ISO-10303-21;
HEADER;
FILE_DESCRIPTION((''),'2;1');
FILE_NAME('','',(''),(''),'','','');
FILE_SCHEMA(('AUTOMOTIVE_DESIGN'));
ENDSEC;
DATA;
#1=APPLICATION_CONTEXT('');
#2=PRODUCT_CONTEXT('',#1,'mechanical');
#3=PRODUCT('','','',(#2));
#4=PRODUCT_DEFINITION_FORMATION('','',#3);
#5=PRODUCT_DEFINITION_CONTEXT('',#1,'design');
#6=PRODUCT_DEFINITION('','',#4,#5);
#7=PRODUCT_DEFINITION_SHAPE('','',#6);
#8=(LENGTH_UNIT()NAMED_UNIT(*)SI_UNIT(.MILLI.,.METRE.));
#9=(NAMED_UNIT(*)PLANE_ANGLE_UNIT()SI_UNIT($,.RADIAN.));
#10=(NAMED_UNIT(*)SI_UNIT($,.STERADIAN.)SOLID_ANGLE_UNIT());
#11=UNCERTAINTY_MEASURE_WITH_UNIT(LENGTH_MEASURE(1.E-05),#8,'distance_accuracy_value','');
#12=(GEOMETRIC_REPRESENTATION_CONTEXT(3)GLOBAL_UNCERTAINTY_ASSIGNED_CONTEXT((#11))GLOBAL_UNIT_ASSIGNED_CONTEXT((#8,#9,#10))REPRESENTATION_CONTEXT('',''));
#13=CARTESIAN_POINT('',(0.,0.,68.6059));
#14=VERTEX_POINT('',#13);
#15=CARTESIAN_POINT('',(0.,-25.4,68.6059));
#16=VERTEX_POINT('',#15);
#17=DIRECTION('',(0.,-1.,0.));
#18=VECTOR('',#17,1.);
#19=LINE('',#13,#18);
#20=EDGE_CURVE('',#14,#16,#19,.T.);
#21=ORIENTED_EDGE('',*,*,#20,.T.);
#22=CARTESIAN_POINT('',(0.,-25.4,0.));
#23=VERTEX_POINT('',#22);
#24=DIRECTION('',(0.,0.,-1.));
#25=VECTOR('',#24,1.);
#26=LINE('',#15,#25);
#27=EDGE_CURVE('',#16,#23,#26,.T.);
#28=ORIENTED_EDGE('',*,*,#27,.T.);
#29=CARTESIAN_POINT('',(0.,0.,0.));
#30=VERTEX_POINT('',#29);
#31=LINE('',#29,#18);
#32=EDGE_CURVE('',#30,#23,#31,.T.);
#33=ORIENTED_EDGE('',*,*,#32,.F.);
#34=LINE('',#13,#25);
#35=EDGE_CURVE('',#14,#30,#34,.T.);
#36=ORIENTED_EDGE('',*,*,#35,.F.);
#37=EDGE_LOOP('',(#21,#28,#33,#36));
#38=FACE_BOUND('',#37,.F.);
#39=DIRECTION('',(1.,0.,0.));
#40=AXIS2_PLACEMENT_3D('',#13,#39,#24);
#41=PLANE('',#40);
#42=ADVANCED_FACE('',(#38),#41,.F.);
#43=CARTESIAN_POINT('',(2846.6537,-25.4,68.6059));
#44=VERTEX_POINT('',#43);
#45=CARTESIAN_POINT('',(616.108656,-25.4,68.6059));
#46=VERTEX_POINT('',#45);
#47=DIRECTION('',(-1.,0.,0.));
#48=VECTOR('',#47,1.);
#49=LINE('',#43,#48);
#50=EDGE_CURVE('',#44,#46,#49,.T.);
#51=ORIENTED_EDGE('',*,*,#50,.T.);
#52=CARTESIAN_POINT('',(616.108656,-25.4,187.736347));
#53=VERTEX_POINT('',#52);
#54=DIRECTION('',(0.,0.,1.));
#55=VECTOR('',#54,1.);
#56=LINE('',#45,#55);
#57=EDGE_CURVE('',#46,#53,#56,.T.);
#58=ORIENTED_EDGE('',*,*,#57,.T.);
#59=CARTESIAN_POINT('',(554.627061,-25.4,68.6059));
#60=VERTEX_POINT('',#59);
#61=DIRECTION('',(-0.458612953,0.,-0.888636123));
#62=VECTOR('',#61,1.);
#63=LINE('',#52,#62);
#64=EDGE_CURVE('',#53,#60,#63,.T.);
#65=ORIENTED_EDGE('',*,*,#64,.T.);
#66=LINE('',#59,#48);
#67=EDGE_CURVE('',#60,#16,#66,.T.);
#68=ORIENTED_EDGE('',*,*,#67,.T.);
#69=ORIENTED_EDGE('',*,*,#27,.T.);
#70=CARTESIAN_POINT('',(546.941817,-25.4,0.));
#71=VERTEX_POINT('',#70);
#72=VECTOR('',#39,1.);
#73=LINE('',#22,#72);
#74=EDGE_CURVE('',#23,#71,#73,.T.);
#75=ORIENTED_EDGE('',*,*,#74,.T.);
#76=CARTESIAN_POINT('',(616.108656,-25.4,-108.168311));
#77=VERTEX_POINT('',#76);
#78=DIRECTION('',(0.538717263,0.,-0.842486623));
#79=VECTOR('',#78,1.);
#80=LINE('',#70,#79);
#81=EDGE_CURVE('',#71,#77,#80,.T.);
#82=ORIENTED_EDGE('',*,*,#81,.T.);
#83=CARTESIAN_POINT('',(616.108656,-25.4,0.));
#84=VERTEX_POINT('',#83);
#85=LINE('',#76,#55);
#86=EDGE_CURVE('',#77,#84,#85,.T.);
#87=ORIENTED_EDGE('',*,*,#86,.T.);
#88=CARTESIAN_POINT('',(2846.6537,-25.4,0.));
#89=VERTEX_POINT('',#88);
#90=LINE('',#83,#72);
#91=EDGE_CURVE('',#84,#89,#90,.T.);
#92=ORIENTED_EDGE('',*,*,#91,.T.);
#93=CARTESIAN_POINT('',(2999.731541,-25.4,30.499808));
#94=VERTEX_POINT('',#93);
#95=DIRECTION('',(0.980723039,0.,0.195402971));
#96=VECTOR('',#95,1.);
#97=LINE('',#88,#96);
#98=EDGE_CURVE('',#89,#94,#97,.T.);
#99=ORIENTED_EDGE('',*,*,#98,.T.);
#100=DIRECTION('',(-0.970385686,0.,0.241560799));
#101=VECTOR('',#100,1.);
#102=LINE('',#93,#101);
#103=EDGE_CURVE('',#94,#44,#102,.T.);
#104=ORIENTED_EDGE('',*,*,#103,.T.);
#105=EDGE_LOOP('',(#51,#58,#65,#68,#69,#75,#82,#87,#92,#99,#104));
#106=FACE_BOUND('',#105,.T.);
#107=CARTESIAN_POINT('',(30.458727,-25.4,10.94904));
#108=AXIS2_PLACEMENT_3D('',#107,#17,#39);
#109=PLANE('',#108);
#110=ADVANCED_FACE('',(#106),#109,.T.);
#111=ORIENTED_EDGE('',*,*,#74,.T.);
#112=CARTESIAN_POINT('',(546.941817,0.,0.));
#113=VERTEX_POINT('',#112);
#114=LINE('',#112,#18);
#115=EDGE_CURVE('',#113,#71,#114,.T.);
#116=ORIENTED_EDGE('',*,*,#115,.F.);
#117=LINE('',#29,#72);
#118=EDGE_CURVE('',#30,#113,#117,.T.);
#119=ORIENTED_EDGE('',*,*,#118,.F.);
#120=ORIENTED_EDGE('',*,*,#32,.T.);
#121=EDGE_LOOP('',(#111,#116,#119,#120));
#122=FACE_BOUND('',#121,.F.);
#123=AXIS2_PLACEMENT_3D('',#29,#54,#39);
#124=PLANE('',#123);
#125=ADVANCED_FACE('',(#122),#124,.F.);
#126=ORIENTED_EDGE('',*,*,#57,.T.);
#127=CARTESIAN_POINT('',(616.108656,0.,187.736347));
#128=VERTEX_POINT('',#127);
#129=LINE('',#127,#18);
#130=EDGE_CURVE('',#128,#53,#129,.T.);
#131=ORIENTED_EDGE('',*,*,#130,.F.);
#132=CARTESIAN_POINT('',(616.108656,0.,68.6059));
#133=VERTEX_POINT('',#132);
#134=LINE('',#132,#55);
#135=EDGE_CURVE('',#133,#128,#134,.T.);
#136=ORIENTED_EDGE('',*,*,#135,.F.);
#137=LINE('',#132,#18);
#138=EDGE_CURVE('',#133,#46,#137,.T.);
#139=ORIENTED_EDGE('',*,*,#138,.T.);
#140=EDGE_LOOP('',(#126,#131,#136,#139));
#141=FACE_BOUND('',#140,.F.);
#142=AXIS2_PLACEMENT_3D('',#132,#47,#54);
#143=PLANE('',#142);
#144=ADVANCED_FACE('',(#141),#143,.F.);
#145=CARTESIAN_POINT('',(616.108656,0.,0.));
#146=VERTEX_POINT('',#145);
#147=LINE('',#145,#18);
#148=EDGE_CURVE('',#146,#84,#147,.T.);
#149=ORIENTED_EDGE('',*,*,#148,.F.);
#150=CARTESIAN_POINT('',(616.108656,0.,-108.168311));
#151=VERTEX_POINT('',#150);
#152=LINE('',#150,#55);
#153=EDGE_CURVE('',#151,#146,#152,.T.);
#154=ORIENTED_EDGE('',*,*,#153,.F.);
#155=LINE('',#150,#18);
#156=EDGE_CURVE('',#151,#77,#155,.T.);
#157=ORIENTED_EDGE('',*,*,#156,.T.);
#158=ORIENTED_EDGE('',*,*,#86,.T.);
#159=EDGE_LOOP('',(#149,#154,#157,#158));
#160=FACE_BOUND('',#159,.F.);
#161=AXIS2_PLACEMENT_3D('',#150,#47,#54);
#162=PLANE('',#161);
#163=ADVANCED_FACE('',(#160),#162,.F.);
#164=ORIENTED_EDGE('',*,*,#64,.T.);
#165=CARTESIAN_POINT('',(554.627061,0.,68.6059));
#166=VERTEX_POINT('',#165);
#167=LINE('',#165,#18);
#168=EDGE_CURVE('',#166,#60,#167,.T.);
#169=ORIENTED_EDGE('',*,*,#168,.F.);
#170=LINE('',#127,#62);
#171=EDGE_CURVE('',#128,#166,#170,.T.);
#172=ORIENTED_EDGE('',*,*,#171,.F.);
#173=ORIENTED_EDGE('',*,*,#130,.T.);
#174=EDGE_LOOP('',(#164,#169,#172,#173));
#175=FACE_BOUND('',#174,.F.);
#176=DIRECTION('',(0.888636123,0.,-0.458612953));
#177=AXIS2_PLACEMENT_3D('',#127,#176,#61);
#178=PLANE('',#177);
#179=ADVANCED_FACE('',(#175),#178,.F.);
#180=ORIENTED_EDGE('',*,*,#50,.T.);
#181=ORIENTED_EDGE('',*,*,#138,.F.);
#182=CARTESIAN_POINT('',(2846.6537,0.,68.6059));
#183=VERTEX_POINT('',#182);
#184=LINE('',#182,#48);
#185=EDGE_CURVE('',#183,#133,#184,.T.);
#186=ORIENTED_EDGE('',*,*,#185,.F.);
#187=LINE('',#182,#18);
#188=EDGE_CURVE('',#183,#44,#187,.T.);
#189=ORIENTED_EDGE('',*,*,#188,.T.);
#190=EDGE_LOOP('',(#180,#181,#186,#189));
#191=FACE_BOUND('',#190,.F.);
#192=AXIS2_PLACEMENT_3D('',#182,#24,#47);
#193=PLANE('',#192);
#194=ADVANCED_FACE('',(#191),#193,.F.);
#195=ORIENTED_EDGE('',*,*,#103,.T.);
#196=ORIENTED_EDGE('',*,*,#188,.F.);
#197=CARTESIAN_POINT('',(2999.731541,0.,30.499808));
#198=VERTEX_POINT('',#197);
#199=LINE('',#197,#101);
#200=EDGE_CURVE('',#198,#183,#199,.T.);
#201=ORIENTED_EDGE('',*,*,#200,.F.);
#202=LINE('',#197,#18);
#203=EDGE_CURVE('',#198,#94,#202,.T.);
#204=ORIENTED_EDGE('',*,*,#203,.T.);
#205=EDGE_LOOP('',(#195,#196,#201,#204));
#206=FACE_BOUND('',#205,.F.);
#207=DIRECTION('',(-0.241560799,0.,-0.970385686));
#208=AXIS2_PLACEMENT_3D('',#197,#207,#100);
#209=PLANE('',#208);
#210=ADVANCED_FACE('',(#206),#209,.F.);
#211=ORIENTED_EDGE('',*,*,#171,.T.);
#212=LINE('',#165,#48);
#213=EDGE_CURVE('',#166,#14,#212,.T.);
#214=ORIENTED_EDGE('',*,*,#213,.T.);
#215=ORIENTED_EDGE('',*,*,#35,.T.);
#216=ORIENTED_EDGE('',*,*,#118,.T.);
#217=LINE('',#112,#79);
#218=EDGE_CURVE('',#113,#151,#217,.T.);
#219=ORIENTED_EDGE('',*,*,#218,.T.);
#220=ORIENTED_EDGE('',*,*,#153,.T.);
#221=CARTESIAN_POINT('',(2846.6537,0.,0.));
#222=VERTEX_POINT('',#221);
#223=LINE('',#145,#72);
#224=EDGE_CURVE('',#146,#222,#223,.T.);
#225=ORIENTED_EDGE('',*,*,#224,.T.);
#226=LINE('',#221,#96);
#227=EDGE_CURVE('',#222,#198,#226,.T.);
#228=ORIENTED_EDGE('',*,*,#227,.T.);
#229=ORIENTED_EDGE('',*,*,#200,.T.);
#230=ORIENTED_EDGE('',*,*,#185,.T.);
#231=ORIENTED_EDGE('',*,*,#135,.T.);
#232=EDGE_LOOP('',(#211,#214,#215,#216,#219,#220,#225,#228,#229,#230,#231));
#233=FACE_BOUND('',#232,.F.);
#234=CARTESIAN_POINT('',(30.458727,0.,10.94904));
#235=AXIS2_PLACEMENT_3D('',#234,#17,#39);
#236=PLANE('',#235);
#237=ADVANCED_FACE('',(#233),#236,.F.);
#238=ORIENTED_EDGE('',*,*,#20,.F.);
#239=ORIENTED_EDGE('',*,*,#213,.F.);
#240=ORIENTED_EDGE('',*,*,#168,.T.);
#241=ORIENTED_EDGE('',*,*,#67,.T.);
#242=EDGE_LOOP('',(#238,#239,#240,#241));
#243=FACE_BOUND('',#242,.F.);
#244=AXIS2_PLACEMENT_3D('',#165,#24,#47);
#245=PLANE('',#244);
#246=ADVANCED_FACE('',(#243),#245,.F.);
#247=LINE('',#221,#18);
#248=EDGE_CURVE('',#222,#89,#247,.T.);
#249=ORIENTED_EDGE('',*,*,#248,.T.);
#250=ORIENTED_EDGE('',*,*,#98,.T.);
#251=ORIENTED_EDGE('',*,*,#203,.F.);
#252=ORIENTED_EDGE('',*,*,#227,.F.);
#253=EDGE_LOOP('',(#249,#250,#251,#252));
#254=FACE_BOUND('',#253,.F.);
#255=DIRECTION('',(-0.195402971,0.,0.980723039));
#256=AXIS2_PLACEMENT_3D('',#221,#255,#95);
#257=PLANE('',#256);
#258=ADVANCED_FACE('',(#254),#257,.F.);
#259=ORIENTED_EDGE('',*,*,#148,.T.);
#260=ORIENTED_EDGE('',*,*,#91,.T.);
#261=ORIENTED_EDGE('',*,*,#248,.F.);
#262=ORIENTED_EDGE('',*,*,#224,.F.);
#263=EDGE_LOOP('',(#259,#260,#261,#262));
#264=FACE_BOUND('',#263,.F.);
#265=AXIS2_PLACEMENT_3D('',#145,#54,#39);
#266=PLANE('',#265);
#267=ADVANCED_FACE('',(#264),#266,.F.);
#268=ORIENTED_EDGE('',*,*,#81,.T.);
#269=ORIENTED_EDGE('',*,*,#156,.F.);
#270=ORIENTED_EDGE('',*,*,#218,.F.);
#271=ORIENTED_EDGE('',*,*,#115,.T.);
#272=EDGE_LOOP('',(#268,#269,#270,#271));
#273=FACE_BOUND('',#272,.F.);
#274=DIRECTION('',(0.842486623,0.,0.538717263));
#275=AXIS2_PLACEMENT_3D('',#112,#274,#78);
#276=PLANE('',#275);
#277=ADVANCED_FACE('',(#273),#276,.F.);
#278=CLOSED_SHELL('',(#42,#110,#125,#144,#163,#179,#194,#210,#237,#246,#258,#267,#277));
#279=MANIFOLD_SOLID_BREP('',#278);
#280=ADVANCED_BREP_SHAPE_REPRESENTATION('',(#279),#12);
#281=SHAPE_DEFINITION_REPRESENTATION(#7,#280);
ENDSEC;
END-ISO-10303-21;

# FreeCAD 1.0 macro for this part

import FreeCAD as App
import Part
import Sketcher

V = App.Vector
Q = App.Units.Quantity


def add_polygon(sketch, points):
    """Adds a closed chain of lines whose ends are joined by coincident constraints."""
    first, n = sketch.GeometryCount, len(points)
    for a, b in zip(points, points[1:] + points[:1]):
        sketch.addGeometry(Part.LineSegment(App.Vector(*a, 0), App.Vector(*b, 0)), False)
    for i in range(n):
        sketch.addConstraint(Sketcher.Constraint("Coincident", first + i, 2, first + (i + 1) % n, 1))

doc = App.newDocument("Part")
body = doc.addObject("PartDesign::Body", "Body")

sketch1 = body.newObject("Sketcher::SketchObject", "Sketch")
sketch1.AttachmentSupport = (doc.getObject("XZ_Plane"), [""])
sketch1.MapMode = "FlatFace"
add_polygon(sketch1, [(0, 0), (547, 0), (616, -108), (616, 0), (2847, 0), (3000, 30), (2847, 69), (616, 69), (616, 188), (555, 69), (0, 69)])
sketch1.addConstraint(Sketcher.Constraint("Horizontal", 0))
sketch1.addConstraint(Sketcher.Constraint("Vertical", 2))
sketch1.addConstraint(Sketcher.Constraint("Horizontal", 3))
sketch1.addConstraint(Sketcher.Constraint("Horizontal", 6))
sketch1.addConstraint(Sketcher.Constraint("Vertical", 7))
sketch1.addConstraint(Sketcher.Constraint("Horizontal", 9))
sketch1.addConstraint(Sketcher.Constraint("Vertical", 10))
sketch1.addConstraint(Sketcher.Constraint("Coincident", 10, 2, -1, 1))
sketch1.addConstraint(Sketcher.Constraint("PointOnObject", 2, 2, -1))
sketch1.addConstraint(Sketcher.Constraint("Horizontal", 6, 2, 8, 2))
sketch1.addConstraint(Sketcher.Constraint("Vertical", 3, 2, 5, 2))
sketch1.addConstraint(Sketcher.Constraint("Vertical", 2, 2, 6, 2))
sketch1.addConstraint(Sketcher.Constraint("DistanceY", 10, 2, 10, 1, Q("68.6059 mm")))
sketch1.addConstraint(Sketcher.Constraint("DistanceX", 9, 2, 9, 1, Q("554.627061 mm")))
sketch1.addConstraint(Sketcher.Constraint("DistanceY", 2, 1, 2, 2, Q("108.168311 mm")))
sketch1.addConstraint(Sketcher.Constraint("DistanceX", -1, 1, 3, 2, Q("2846.6537 mm")))
sketch1.addConstraint(Sketcher.Constraint("Distance", 4, Q("156.086718 mm")))
sketch1.addConstraint(Sketcher.Constraint("DistanceX", 0, 1, 0, 2, Q("546.941817 mm")))
sketch1.addConstraint(Sketcher.Constraint("DistanceX", 3, 1, 3, 2, Q("2230.545044 mm")))
sketch1.addConstraint(Sketcher.Constraint("DistanceY", 7, 1, 7, 2, Q("119.130448 mm")))
sketch1.addConstraint(Sketcher.Constraint("DistanceX", -1, 1, 4, 2, Q("2999.731541 mm")))
pad1 = body.newObject("PartDesign::Pad", "Pad")
pad1.Profile = sketch1
pad1.Length = Q("1 in")

doc.recompute()
